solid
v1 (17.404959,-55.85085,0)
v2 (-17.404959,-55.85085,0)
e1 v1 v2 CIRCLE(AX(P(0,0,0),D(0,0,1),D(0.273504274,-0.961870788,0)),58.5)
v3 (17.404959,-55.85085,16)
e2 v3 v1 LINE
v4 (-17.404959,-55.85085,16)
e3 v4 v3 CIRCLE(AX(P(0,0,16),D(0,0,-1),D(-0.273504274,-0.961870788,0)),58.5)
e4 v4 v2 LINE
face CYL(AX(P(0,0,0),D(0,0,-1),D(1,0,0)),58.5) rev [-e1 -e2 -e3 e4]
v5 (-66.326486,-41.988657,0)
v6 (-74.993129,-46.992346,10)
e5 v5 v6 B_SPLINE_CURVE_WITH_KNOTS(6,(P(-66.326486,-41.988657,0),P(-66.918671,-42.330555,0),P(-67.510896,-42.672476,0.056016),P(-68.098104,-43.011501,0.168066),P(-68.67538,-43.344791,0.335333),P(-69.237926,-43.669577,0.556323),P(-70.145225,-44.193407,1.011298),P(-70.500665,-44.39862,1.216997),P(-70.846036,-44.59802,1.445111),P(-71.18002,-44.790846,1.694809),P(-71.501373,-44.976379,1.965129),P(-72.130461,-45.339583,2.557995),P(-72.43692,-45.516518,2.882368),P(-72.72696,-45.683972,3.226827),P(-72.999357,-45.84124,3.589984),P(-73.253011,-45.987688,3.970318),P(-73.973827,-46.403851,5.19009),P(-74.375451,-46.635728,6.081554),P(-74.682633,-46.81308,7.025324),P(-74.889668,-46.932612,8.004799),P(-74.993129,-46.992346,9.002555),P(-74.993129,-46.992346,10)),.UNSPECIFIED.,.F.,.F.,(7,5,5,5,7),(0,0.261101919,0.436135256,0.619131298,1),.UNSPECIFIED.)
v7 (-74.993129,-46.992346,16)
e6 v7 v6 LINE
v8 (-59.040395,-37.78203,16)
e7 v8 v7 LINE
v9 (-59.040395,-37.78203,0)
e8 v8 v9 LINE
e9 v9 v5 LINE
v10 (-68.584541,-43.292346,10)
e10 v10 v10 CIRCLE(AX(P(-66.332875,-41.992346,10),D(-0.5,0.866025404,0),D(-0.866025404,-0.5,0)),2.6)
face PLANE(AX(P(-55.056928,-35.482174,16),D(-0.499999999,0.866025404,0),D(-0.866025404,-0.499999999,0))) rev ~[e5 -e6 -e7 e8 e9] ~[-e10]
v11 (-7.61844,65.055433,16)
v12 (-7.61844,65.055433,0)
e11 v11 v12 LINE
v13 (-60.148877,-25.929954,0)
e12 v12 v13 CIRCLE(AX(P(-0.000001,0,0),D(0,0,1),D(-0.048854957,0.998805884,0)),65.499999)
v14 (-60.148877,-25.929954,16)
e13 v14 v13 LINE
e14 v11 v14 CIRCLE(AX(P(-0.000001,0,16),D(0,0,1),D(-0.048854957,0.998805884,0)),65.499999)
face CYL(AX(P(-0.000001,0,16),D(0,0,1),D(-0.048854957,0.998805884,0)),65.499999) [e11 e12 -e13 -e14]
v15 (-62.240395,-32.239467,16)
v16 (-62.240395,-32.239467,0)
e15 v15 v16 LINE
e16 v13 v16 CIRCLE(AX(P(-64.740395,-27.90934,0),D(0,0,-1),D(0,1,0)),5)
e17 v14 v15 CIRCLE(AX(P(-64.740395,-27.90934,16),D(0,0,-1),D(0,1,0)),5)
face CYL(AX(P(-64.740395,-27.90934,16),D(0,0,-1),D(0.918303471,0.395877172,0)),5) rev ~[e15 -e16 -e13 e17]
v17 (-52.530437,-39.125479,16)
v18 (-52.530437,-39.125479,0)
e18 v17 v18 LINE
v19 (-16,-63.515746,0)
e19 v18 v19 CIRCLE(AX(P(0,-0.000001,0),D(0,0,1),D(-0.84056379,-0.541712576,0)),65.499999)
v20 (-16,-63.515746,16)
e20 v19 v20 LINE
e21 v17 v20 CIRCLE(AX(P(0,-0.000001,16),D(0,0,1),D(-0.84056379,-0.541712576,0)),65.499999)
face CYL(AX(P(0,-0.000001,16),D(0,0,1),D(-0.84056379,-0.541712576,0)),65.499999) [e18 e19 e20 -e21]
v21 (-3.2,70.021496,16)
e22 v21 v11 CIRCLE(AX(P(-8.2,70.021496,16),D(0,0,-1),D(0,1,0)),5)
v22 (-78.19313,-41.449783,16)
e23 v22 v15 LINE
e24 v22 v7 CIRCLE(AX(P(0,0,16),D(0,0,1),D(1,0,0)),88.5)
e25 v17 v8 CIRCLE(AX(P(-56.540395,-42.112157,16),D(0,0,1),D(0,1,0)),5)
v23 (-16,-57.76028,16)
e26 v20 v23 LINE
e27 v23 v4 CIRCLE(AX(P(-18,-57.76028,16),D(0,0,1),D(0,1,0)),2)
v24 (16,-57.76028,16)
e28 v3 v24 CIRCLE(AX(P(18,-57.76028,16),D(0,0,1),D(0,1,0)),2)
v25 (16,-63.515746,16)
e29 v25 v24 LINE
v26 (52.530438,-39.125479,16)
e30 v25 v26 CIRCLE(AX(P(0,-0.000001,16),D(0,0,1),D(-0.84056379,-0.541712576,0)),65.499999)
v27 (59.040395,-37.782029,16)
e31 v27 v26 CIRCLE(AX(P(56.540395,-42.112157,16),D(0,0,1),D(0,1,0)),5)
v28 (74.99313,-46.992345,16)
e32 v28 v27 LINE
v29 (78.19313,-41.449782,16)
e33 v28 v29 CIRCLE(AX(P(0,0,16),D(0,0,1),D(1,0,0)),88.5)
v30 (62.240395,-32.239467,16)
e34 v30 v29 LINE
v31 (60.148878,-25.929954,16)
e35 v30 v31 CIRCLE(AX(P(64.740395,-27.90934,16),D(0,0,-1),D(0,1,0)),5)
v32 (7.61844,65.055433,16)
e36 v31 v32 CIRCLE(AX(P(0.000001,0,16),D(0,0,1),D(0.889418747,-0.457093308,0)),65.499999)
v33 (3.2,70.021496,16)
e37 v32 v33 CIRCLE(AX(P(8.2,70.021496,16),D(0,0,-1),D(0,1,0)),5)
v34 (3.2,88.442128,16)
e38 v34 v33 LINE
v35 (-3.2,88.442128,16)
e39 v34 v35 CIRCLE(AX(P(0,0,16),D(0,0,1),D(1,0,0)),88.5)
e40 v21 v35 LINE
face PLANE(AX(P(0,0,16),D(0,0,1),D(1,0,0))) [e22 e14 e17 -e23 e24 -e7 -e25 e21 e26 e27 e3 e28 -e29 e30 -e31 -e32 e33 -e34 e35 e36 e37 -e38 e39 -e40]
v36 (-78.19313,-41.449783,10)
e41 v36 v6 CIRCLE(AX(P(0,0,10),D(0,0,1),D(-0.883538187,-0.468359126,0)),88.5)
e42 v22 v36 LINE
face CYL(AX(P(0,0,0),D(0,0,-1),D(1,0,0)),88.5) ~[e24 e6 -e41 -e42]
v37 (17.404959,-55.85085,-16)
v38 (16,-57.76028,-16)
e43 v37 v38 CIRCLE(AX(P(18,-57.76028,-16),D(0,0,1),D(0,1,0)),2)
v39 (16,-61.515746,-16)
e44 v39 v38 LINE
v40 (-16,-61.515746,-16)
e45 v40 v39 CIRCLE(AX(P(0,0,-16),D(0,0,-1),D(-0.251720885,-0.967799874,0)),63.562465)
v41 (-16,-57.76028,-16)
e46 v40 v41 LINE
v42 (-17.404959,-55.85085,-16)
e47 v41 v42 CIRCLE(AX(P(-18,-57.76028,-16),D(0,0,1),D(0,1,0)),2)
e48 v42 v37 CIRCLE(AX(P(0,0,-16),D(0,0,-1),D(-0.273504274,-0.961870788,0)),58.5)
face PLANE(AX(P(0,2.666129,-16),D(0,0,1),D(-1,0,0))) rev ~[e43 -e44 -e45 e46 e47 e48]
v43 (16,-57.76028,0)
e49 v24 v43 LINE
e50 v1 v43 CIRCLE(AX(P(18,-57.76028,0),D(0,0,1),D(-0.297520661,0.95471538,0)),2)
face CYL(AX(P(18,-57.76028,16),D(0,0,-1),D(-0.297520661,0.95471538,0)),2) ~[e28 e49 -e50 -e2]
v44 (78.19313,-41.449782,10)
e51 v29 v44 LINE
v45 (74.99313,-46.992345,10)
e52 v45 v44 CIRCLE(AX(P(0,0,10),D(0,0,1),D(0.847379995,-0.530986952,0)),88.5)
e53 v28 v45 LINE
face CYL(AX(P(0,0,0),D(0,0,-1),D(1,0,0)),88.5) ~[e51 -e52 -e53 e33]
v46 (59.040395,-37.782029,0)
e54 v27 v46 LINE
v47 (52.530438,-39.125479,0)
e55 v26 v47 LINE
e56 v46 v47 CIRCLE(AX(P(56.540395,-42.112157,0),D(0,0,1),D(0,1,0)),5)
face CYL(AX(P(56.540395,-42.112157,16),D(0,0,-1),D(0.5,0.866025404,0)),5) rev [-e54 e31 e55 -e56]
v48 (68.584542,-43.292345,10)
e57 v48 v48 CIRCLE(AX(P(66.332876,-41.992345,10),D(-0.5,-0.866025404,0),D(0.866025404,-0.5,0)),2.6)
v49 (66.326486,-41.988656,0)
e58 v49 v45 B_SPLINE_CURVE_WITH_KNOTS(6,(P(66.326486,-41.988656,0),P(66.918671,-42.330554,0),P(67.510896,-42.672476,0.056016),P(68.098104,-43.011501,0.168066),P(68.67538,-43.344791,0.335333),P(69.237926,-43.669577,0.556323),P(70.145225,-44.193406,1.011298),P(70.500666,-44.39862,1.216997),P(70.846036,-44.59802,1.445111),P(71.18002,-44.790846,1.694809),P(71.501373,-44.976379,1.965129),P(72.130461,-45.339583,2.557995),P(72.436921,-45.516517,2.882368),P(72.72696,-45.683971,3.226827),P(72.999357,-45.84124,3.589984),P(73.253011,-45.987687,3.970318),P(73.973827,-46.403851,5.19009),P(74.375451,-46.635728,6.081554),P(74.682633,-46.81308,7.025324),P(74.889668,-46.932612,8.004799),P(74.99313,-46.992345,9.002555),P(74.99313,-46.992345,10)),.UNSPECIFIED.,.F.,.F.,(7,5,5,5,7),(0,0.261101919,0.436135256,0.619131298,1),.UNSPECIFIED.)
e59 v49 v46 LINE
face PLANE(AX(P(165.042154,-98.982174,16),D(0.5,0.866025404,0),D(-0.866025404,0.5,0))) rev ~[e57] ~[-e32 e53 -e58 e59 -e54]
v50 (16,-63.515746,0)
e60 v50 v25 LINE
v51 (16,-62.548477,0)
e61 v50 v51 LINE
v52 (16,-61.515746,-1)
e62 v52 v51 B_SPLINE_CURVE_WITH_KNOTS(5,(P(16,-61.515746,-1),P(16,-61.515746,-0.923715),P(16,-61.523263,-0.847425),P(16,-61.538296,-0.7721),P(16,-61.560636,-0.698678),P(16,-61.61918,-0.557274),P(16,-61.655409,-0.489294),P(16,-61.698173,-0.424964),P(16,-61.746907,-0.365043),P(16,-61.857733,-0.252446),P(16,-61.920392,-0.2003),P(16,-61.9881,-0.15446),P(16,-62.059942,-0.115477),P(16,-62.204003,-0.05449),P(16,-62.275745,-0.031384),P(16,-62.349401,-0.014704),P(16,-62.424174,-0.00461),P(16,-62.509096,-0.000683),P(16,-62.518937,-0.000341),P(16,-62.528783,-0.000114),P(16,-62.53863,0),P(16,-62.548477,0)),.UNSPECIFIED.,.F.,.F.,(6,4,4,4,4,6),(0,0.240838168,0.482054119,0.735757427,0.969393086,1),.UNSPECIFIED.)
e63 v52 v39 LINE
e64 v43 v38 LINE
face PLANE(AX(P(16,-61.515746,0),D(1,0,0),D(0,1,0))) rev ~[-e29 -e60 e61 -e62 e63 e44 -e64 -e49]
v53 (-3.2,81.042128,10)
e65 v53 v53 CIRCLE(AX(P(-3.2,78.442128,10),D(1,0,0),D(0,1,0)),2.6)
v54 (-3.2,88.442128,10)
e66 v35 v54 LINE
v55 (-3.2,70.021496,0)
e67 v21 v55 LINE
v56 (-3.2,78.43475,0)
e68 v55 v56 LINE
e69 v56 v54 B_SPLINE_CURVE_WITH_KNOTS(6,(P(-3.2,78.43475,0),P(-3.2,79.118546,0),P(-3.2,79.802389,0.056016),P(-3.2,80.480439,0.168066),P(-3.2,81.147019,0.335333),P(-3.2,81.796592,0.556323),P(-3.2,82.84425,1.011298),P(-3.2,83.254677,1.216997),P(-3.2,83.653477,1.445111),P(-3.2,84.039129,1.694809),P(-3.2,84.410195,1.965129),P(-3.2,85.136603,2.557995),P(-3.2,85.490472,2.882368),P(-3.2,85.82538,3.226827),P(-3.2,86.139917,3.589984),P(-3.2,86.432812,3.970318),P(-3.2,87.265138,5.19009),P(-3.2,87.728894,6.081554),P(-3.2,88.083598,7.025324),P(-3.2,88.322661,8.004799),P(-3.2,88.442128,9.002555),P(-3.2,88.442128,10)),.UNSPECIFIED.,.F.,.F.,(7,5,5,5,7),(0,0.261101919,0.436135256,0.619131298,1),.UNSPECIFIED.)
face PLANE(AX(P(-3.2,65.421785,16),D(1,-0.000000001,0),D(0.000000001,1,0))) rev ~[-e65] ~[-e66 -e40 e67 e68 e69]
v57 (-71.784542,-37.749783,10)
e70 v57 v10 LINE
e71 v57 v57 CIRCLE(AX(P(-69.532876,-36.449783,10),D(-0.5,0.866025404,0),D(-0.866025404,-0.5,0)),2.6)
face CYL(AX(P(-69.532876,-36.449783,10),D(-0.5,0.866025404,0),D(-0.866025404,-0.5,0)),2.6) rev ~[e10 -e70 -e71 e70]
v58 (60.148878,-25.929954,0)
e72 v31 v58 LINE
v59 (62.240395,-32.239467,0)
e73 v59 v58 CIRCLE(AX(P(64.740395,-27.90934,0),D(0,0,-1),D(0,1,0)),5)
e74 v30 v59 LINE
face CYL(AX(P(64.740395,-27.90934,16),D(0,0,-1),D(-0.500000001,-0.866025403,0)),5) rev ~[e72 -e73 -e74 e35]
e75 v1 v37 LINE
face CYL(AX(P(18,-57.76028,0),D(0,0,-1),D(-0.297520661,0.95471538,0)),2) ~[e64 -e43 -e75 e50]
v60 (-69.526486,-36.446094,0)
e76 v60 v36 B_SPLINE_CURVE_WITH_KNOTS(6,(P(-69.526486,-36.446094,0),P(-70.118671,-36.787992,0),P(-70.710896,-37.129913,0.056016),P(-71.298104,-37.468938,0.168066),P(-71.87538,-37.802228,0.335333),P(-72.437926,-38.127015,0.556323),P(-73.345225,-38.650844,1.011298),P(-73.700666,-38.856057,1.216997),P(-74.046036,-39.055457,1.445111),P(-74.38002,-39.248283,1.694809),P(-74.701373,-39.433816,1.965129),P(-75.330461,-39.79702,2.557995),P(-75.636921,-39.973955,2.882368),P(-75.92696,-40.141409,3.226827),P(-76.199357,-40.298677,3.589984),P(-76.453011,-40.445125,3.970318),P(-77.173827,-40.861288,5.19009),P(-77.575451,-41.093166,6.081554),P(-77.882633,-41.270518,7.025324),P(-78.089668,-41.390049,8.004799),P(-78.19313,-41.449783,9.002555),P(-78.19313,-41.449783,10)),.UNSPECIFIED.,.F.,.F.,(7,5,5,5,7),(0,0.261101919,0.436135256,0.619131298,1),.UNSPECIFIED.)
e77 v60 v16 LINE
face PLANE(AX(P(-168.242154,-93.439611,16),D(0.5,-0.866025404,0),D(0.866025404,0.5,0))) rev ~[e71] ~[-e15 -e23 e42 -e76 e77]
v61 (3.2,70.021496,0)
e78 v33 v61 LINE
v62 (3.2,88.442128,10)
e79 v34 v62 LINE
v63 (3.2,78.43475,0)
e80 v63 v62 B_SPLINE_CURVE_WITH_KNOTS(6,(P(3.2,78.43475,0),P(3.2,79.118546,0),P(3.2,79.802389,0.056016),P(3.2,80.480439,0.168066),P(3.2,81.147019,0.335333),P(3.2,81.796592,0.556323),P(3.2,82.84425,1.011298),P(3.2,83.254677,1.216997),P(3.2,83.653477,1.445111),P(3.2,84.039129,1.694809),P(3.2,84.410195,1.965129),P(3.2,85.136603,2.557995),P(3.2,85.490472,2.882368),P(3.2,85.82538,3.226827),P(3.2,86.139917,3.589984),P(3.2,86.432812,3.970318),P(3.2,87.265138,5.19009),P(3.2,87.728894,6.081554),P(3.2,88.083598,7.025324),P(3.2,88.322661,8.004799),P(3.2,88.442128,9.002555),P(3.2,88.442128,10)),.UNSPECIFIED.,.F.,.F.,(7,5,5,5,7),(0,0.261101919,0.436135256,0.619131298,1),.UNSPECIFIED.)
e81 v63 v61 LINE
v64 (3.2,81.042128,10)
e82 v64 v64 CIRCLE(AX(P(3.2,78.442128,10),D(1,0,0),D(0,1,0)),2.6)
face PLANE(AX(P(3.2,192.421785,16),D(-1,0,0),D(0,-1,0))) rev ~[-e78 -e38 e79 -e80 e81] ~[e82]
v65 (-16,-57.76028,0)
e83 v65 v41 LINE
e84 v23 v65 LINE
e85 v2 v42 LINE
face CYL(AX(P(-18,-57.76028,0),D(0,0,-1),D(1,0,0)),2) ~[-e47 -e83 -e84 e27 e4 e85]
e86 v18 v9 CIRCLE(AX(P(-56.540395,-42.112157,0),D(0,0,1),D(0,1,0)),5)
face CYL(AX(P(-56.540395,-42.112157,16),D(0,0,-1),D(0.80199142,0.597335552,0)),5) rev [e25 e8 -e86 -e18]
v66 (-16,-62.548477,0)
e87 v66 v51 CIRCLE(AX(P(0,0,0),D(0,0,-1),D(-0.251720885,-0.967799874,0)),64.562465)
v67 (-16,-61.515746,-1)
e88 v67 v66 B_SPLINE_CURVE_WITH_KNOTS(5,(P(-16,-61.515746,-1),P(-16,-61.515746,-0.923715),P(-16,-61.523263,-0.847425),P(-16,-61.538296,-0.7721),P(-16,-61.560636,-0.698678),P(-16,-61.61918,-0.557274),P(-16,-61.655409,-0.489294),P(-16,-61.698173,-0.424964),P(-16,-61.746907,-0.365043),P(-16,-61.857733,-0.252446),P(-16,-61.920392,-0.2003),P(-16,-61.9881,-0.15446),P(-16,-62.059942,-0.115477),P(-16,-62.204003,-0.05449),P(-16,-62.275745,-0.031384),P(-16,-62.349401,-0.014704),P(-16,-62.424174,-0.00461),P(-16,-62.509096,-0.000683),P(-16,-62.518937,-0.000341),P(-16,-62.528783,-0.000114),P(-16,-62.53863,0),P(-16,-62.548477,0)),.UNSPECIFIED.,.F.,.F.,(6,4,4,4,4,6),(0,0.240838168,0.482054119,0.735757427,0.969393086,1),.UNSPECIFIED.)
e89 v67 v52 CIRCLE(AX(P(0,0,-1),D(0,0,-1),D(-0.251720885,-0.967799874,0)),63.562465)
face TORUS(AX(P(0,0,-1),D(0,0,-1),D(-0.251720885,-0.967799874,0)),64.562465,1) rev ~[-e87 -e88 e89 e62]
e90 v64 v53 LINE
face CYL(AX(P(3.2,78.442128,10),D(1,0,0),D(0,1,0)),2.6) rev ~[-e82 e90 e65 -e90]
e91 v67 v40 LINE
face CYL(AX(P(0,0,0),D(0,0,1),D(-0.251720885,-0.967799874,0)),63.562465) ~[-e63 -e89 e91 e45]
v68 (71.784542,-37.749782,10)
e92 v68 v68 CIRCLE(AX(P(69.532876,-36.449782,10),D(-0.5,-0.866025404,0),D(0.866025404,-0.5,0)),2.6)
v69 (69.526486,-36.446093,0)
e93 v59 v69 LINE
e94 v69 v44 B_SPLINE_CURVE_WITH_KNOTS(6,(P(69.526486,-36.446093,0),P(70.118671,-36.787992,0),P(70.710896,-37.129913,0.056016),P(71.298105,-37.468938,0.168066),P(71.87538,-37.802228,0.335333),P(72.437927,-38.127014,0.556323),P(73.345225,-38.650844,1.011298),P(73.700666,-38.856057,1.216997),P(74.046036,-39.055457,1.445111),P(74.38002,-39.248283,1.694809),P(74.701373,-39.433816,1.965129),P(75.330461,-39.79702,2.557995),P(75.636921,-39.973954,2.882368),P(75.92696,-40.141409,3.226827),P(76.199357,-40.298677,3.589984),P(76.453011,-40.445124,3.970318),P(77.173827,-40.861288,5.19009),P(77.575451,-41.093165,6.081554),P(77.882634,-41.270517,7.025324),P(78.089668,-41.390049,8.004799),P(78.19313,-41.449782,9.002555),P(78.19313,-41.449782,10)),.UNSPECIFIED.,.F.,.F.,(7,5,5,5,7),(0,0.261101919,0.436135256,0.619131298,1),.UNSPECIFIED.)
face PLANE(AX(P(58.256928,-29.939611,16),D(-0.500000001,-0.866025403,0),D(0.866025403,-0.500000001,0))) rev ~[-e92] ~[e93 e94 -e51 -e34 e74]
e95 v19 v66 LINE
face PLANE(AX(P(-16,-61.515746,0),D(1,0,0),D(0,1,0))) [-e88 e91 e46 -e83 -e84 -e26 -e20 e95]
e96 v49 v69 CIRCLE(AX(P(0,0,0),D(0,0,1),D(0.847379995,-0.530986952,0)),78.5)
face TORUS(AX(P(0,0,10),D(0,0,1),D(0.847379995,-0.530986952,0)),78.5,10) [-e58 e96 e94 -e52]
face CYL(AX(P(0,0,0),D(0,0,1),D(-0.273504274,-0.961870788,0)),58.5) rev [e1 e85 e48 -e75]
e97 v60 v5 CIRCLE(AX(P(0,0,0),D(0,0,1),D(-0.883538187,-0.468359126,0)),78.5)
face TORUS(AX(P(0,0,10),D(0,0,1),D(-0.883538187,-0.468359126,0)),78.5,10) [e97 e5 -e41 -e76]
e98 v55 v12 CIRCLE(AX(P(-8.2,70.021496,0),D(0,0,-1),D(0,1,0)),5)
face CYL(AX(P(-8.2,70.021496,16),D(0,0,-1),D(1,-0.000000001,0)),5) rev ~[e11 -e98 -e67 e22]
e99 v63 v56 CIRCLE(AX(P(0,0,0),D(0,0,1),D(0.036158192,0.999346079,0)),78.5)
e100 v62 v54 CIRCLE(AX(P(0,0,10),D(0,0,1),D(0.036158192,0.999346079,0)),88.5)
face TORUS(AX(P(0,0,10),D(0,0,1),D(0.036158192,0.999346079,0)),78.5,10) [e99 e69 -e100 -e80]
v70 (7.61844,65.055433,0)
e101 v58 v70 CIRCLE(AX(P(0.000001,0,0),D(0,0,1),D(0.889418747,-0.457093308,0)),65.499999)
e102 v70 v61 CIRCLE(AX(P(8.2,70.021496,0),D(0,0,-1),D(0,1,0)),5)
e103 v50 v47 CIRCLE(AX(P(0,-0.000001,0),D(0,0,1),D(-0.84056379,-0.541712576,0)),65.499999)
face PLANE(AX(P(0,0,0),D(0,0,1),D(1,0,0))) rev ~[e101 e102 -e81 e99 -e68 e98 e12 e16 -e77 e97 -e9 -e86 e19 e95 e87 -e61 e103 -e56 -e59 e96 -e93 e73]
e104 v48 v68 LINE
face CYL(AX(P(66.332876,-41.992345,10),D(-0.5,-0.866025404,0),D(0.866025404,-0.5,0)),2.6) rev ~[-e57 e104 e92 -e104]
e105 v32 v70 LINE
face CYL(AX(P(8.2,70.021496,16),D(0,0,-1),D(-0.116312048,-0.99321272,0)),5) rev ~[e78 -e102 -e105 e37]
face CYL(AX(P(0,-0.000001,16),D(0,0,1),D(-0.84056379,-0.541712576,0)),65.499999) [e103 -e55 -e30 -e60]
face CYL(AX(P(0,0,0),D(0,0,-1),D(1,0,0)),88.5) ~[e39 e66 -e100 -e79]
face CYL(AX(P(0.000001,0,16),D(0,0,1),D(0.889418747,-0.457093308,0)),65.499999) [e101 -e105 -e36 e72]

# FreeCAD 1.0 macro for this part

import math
import FreeCAD as App
import Part
import Sketcher
from FreeCAD import Vector
Q = App.Units.Quantity


def edges_at(feature, points):
    """Names of the edges that pass closest to the given points."""
    edges = feature.Shape.Edges
    near = lambda p: min(range(len(edges)), key=lambda i: edges[i].distToShape(Part.Vertex(*p))[0])
    return sorted({f"Edge{near(p) + 1}" for p in points})


def add_polygon(sketch, points):
    """Adds a closed chain of lines whose ends are joined by coincident constraints."""
    first, n = sketch.GeometryCount, len(points)
    for a, b in zip(points, points[1:] + points[:1]):
        sketch.addGeometry(Part.LineSegment(App.Vector(*a, 0), App.Vector(*b, 0)), False)
    for i in range(n):
        sketch.addConstraint(Sketcher.Constraint("Coincident", first + i, 2, first + (i + 1) % n, 1))

doc = App.newDocument("Part")
body = doc.addObject("PartDesign::Body", "Body")

sketch1 = body.newObject("Sketcher::SketchObject", "Sketch")
sketch1.AttachmentSupport = (doc.getObject("XY_Plane"), [""])
sketch1.MapMode = "FlatFace"
sketch1.addGeometry([
    Part.Circle(Vector(0, 0, 0), Vector(0, 0, 1), 88),
    Part.Circle(Vector(0, 0, 0), Vector(0, 0, 1), 58),
], False)
sketch1.addConstraint([
    Sketcher.Constraint("Coincident", 0, 3, -1, 1),
    Sketcher.Constraint("Coincident", 1, 3, -1, 1),
    Sketcher.Constraint("Diameter", 0, 177.0),
    Sketcher.Constraint("Diameter", 1, 117.0),
])
pad1 = body.newObject("PartDesign::Pad", "Pad")
pad1.Profile = sketch1
pad1.Length = 16

sketch2 = body.newObject("Sketcher::SketchObject", "Sketch001")
sketch2.AttachmentSupport = (doc.getObject("XY_Plane"), [""])
sketch2.MapMode = "FlatFace"
sketch2.AttachmentOffset = App.Placement(Vector(0, 0, 16), App.Rotation())
sketch2.addGeometry([
    Part.ArcOfCircle(Part.Circle(Vector(0, 0, 0), Vector(0, 0, 1), 65), math.radians(-27), math.radians(87)),
    Part.LineSegment(Vector(58, -30, 0), Vector(168, -93, 0)),
    Part.ArcOfCircle(Part.Circle(Vector(0, 0, 0), Vector(0, 0, 1), 192), math.radians(-29), math.radians(89)),
    Part.LineSegment(Vector(3, 192, 0), Vector(3, 65, 0)),
], False)
sketch2.addConstraint([
    Sketcher.Constraint("Coincident", 0, 1, 1, 1),
    Sketcher.Constraint("Coincident", 1, 2, 2, 1),
    Sketcher.Constraint("Coincident", 2, 2, 3, 1),
    Sketcher.Constraint("Coincident", 3, 2, 0, 2),
    Sketcher.Constraint("Vertical", 3),
    Sketcher.Constraint("Coincident", 0, 3, -1, 1),
    Sketcher.Constraint("Coincident", 2, 3, -1, 1),
    Sketcher.Constraint("Radius", 0, 65.499999),
    Sketcher.Constraint("DistanceY", 3, 2, 3, 1, 127.0),
    Sketcher.Constraint("Angle", 1, Q("-30 deg")),
    Sketcher.Constraint("Distance", 1, 127.0),
    Sketcher.Constraint("DistanceX", -1, 1, 2, 2, 3.2),
])
pocket1 = body.newObject("PartDesign::Pocket", "Pocket")
pocket1.Profile = sketch2
pocket1.Type = "ThroughAll"
doc.recompute()

polarpattern = body.newObject("PartDesign::PolarPattern", "PolarPattern")
polarpattern.Originals = [pocket1]
polarpattern.Axis = (doc.getObject("Z_Axis"), [""])
polarpattern.Angle = 360
polarpattern.Occurrences = 3
body.Tip = polarpattern

sketch3 = body.newObject("Sketcher::SketchObject", "Sketch002")
sketch3.AttachmentSupport = (doc.getObject("XY_Plane"), [""])
sketch3.MapMode = "FlatFace"
sketch3.AttachmentOffset = App.Placement(Vector(0, 0, 16), App.Rotation())
add_polygon(sketch3, [(-16, 0), (-16, -137), (16, -137), (16, 0)])
sketch3.addConstraint([
    Sketcher.Constraint("Vertical", 0),
    Sketcher.Constraint("Horizontal", 1),
    Sketcher.Constraint("Vertical", 2),
    Sketcher.Constraint("Horizontal", 3),
    Sketcher.Constraint("Symmetric", 2, 2, 3, 2, -1, 1),
    Sketcher.Constraint("DistanceX", 1, 1, 1, 2, 32.0),
    Sketcher.Constraint("DistanceY", 0, 2, 0, 1, 137.0),
])
pocket2 = body.newObject("PartDesign::Pocket", "Pocket001")
pocket2.Profile = sketch3
pocket2.Type = "ThroughAll"

sketch4 = body.newObject("Sketcher::SketchObject", "Sketch003")
sketch4.AttachmentSupport = (doc.getObject("YZ_Plane"), [""])
sketch4.MapMode = "FlatFace"
sketch4.AttachmentOffset = App.Placement(Vector(0, 0, 3.2), App.Rotation())
sketch4.addGeometry(Part.Circle(Vector(78.4, 10, 0), Vector(0, 0, 1), 2.6), False)
sketch4.addConstraint([
    Sketcher.Constraint("Diameter", 0, 5.2),
    Sketcher.Constraint("DistanceY", -1, 1, 0, 3, 10.0),
    Sketcher.Constraint("DistanceX", -1, 1, 0, 3, 78.442128),
])
pocket3 = body.newObject("PartDesign::Pocket", "Pocket002")
pocket3.Profile = sketch4
pocket3.Type = "ThroughAll"
doc.recompute()

polarpattern2 = body.newObject("PartDesign::PolarPattern", "PolarPattern001")
polarpattern2.Originals = [pocket3]
polarpattern2.Axis = (doc.getObject("Z_Axis"), [""])
polarpattern2.Angle = 360
polarpattern2.Occurrences = 3
body.Tip = polarpattern2

sketch5 = body.newObject("Sketcher::SketchObject", "Sketch004")
sketch5.AttachmentSupport = (doc.getObject("XY_Plane"), [""])
sketch5.MapMode = "FlatFace"
sketch5.addGeometry([
    Part.ArcOfCircle(Part.Circle(Vector(0, 0, 0), Vector(0, 0, 1), 58), math.radians(-74), math.radians(254)),
    Part.LineSegment(Vector(-16, -56, 0), Vector(-16, -62, 0)),
    Part.ArcOfCircle(Part.Circle(Vector(0, 0, 0), Vector(0, 0, 1), 64), math.radians(-75), math.radians(255)),
    Part.LineSegment(Vector(16, -62, 0), Vector(16, -56, 0)),
], False)
sketch5.addConstraint([
    Sketcher.Constraint("Coincident", 0, 2, 1, 1),
    Sketcher.Constraint("Coincident", 1, 2, 2, 2),
    Sketcher.Constraint("Coincident", 2, 1, 3, 1),
    Sketcher.Constraint("Coincident", 3, 2, 0, 1),
    Sketcher.Constraint("Vertical", 1),
    Sketcher.Constraint("Vertical", 3),
    Sketcher.Constraint("Coincident", 0, 3, -1, 1),
    Sketcher.Constraint("Coincident", 2, 3, -1, 1),
    Sketcher.Constraint("Horizontal", 1, 2, 2, 1),
    Sketcher.Constraint("Radius", 0, 58.5),
    Sketcher.Constraint("DistanceX", 0, 2, -1, 1, 16.0),
    Sketcher.Constraint("Radius", 2, 63.562465),
])
pad2 = body.newObject("PartDesign::Pad", "Pad001")
pad2.Profile = sketch5
pad2.Length = 16
pad2.Reversed = True
doc.recompute()

fillet = body.newObject("PartDesign::Fillet", "Fillet")
fillet.Base = (pad2, edges_at(pad2, [(0, 63.562, 0)]))
fillet.Radius = 1
doc.recompute()

fillet2 = body.newObject("PartDesign::Fillet", "Fillet001")
fillet2.Base = (fillet, edges_at(fillet, [
    (-16, -56.269, -8),
    (-16, -56.269, 8),
    (16, -56.269, -8),
    (16, -56.269, 8),
]))
fillet2.Radius = 2
doc.recompute()

fillet3 = body.newObject("PartDesign::Fillet", "Fillet002")
fillet3.Base = (fillet2, edges_at(fillet2, [(-76.643, -44.25, 0), (76.643, -44.25, 0), (0, 88.5, 0)]))
fillet3.Radius = 10
doc.recompute()

fillet4 = body.newObject("PartDesign::Fillet", "Fillet003")
fillet4.Base = (fillet3, edges_at(fillet3, [
    (58.257, -29.94, 8),
    (55.057, -35.482, 8),
    (-55.057, -35.482, 8),
    (-58.257, -29.94, 8),
    (-3.2, 65.422, 8),
    (3.2, 65.422, 8),
]))
fillet4.Radius = 5

doc.recompute()
